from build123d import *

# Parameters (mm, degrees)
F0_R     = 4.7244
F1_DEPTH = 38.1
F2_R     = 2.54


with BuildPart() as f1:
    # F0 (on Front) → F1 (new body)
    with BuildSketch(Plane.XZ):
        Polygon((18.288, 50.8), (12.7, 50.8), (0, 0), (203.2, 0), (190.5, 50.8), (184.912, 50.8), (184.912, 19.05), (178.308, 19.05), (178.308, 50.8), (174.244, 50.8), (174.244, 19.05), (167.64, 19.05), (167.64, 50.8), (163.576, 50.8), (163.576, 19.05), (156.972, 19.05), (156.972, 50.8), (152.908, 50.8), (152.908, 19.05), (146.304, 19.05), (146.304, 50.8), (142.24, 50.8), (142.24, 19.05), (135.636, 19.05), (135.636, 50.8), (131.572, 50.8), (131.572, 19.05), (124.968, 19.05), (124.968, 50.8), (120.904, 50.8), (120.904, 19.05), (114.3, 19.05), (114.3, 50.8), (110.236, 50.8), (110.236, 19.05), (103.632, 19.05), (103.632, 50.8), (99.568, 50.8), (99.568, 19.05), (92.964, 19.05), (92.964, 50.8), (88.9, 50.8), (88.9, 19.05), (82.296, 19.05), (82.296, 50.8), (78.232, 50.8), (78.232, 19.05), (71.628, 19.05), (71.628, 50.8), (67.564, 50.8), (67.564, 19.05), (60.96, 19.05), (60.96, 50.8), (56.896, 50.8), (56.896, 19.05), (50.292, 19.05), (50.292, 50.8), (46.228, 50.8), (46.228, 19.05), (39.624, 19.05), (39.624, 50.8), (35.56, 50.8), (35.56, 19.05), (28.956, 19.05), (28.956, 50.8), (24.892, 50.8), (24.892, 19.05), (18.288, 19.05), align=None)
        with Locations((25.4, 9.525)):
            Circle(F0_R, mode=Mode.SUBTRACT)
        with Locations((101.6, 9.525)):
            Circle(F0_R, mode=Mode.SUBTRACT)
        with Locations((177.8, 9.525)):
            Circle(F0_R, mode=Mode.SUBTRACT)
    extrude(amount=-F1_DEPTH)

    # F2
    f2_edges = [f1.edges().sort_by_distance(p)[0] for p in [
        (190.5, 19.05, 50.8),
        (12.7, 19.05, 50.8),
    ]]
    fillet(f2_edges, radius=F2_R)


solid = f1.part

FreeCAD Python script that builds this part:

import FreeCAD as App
import Part
import Sketcher
from FreeCAD import Vector
Q = App.Units.Quantity


def edges_at(feature, points):
    """Names of the edges that pass closest to the given points."""
    edges = feature.Shape.Edges
    near = lambda p: min(range(len(edges)), key=lambda i: edges[i].distToShape(Part.Vertex(*p))[0])
    return sorted({f"Edge{near(p) + 1}" for p in points})

doc = App.newDocument("Part")
body = doc.addObject("PartDesign::Body", "Body")

# Sketch on XZ plane
sketch1 = body.newObject("Sketcher::SketchObject", "Sketch")
sketch1.AttachmentSupport = (doc.getObject("XZ_Plane"), [""])
sketch1.MapMode = "FlatFace"
sketch1.addGeometry(Part.LineSegment(Vector(18.3, 50.8, 0), Vector(12.7, 50.8, 0)), False)
sketch1.addGeometry(Part.LineSegment(Vector(12.7, 50.8, 0), Vector(0, 0, 0)), False)
sketch1.addGeometry(Part.LineSegment(Vector(0, 0, 0), Vector(203.2, 0, 0)), False)
sketch1.addGeometry(Part.LineSegment(Vector(203.2, 0, 0), Vector(190.5, 50.8, 0)), False)
sketch1.addGeometry(Part.LineSegment(Vector(190.5, 50.8, 0), Vector(184.9, 50.8, 0)), False)
sketch1.addGeometry(Part.LineSegment(Vector(184.9, 50.8, 0), Vector(184.9, 19.1, 0)), False)
sketch1.addGeometry(Part.LineSegment(Vector(184.9, 19.1, 0), Vector(178.3, 19.1, 0)), False)
sketch1.addGeometry(Part.LineSegment(Vector(178.3, 19.1, 0), Vector(178.3, 50.8, 0)), False)
sketch1.addGeometry(Part.LineSegment(Vector(178.3, 50.8, 0), Vector(174.2, 50.8, 0)), False)
sketch1.addGeometry(Part.LineSegment(Vector(174.2, 50.8, 0), Vector(174.2, 19.1, 0)), False)
sketch1.addGeometry(Part.LineSegment(Vector(174.2, 19.1, 0), Vector(167.6, 19.1, 0)), False)
sketch1.addGeometry(Part.LineSegment(Vector(167.6, 19.1, 0), Vector(167.6, 50.8, 0)), False)
sketch1.addGeometry(Part.LineSegment(Vector(167.6, 50.8, 0), Vector(163.6, 50.8, 0)), False)
sketch1.addGeometry(Part.LineSegment(Vector(163.6, 50.8, 0), Vector(163.6, 19.1, 0)), False)
sketch1.addGeometry(Part.LineSegment(Vector(163.6, 19.1, 0), Vector(157, 19.1, 0)), False)
sketch1.addGeometry(Part.LineSegment(Vector(157, 19.1, 0), Vector(157, 50.8, 0)), False)
sketch1.addGeometry(Part.LineSegment(Vector(157, 50.8, 0), Vector(152.9, 50.8, 0)), False)
sketch1.addGeometry(Part.LineSegment(Vector(152.9, 50.8, 0), Vector(152.9, 19.1, 0)), False)
sketch1.addGeometry(Part.LineSegment(Vector(152.9, 19.1, 0), Vector(146.3, 19.1, 0)), False)
sketch1.addGeometry(Part.LineSegment(Vector(146.3, 19.1, 0), Vector(146.3, 50.8, 0)), False)
sketch1.addGeometry(Part.LineSegment(Vector(146.3, 50.8, 0), Vector(142.2, 50.8, 0)), False)
sketch1.addGeometry(Part.LineSegment(Vector(142.2, 50.8, 0), Vector(142.2, 19.1, 0)), False)
sketch1.addGeometry(Part.LineSegment(Vector(142.2, 19.1, 0), Vector(135.6, 19.1, 0)), False)
sketch1.addGeometry(Part.LineSegment(Vector(135.6, 19.1, 0), Vector(135.6, 50.8, 0)), False)
sketch1.addGeometry(Part.LineSegment(Vector(135.6, 50.8, 0), Vector(131.6, 50.8, 0)), False)
sketch1.addGeometry(Part.LineSegment(Vector(131.6, 50.8, 0), Vector(131.6, 19.1, 0)), False)
sketch1.addGeometry(Part.LineSegment(Vector(131.6, 19.1, 0), Vector(125, 19.1, 0)), False)
sketch1.addGeometry(Part.LineSegment(Vector(125, 19.1, 0), Vector(125, 50.8, 0)), False)
sketch1.addGeometry(Part.LineSegment(Vector(125, 50.8, 0), Vector(120.9, 50.8, 0)), False)
sketch1.addGeometry(Part.LineSegment(Vector(120.9, 50.8, 0), Vector(120.9, 19.1, 0)), False)
sketch1.addGeometry(Part.LineSegment(Vector(120.9, 19.1, 0), Vector(114.3, 19.1, 0)), False)
sketch1.addGeometry(Part.LineSegment(Vector(114.3, 19.1, 0), Vector(114.3, 50.8, 0)), False)
sketch1.addGeometry(Part.LineSegment(Vector(114.3, 50.8, 0), Vector(110.2, 50.8, 0)), False)
sketch1.addGeometry(Part.LineSegment(Vector(110.2, 50.8, 0), Vector(110.2, 19.1, 0)), False)
sketch1.addGeometry(Part.LineSegment(Vector(110.2, 19.1, 0), Vector(103.6, 19.1, 0)), False)
sketch1.addGeometry(Part.LineSegment(Vector(103.6, 19.1, 0), Vector(103.6, 50.8, 0)), False)
sketch1.addGeometry(Part.LineSegment(Vector(103.6, 50.8, 0), Vector(99.6, 50.8, 0)), False)
sketch1.addGeometry(Part.LineSegment(Vector(99.6, 50.8, 0), Vector(99.6, 19.1, 0)), False)
sketch1.addGeometry(Part.LineSegment(Vector(99.6, 19.1, 0), Vector(93, 19.1, 0)), False)
sketch1.addGeometry(Part.LineSegment(Vector(93, 19.1, 0), Vector(93, 50.8, 0)), False)
sketch1.addGeometry(Part.LineSegment(Vector(93, 50.8, 0), Vector(88.9, 50.8, 0)), False)
sketch1.addGeometry(Part.LineSegment(Vector(88.9, 50.8, 0), Vector(88.9, 19.1, 0)), False)
sketch1.addGeometry(Part.LineSegment(Vector(88.9, 19.1, 0), Vector(82.3, 19.1, 0)), False)
sketch1.addGeometry(Part.LineSegment(Vector(82.3, 19.1, 0), Vector(82.3, 50.8, 0)), False)
sketch1.addGeometry(Part.LineSegment(Vector(82.3, 50.8, 0), Vector(78.2, 50.8, 0)), False)
sketch1.addGeometry(Part.LineSegment(Vector(78.2, 50.8, 0), Vector(78.2, 19.1, 0)), False)
sketch1.addGeometry(Part.LineSegment(Vector(78.2, 19.1, 0), Vector(71.6, 19.1, 0)), False)
sketch1.addGeometry(Part.LineSegment(Vector(71.6, 19.1, 0), Vector(71.6, 50.8, 0)), False)
sketch1.addGeometry(Part.LineSegment(Vector(71.6, 50.8, 0), Vector(67.6, 50.8, 0)), False)
sketch1.addGeometry(Part.LineSegment(Vector(67.6, 50.8, 0), Vector(67.6, 19.1, 0)), False)
sketch1.addGeometry(Part.LineSegment(Vector(67.6, 19.1, 0), Vector(61, 19.1, 0)), False)
sketch1.addGeometry(Part.LineSegment(Vector(61, 19.1, 0), Vector(61, 50.8, 0)), False)
sketch1.addGeometry(Part.LineSegment(Vector(61, 50.8, 0), Vector(56.9, 50.8, 0)), False)
sketch1.addGeometry(Part.LineSegment(Vector(56.9, 50.8, 0), Vector(56.9, 19.1, 0)), False)
sketch1.addGeometry(Part.LineSegment(Vector(56.9, 19.1, 0), Vector(50.3, 19.1, 0)), False)
sketch1.addGeometry(Part.LineSegment(Vector(50.3, 19.1, 0), Vector(50.3, 50.8, 0)), False)
sketch1.addGeometry(Part.LineSegment(Vector(50.3, 50.8, 0), Vector(46.2, 50.8, 0)), False)
sketch1.addGeometry(Part.LineSegment(Vector(46.2, 50.8, 0), Vector(46.2, 19.1, 0)), False)
sketch1.addGeometry(Part.LineSegment(Vector(46.2, 19.1, 0), Vector(39.6, 19.1, 0)), False)
sketch1.addGeometry(Part.LineSegment(Vector(39.6, 19.1, 0), Vector(39.6, 50.8, 0)), False)
sketch1.addGeometry(Part.LineSegment(Vector(39.6, 50.8, 0), Vector(35.6, 50.8, 0)), False)
sketch1.addGeometry(Part.LineSegment(Vector(35.6, 50.8, 0), Vector(35.6, 19.1, 0)), False)
sketch1.addGeometry(Part.LineSegment(Vector(35.6, 19.1, 0), Vector(29, 19.1, 0)), False)
sketch1.addGeometry(Part.LineSegment(Vector(29, 19.1, 0), Vector(29, 50.8, 0)), False)
sketch1.addGeometry(Part.LineSegment(Vector(29, 50.8, 0), Vector(24.9, 50.8, 0)), False)
sketch1.addGeometry(Part.LineSegment(Vector(24.9, 50.8, 0), Vector(24.9, 19.1, 0)), False)
sketch1.addGeometry(Part.LineSegment(Vector(24.9, 19.1, 0), Vector(18.3, 19.1, 0)), False)
sketch1.addGeometry(Part.LineSegment(Vector(18.3, 19.1, 0), Vector(18.3, 50.8, 0)), False)
sketch1.addGeometry(Part.Circle(Vector(25.4, 9.5, 0), Vector(0, 0, 1), 4.7), False)
sketch1.addGeometry(Part.Circle(Vector(101.6, 9.5, 0), Vector(0, 0, 1), 4.7), False)
sketch1.addGeometry(Part.Circle(Vector(177.8, 9.5, 0), Vector(0, 0, 1), 4.7), False)
sketch1.addConstraint(Sketcher.Constraint("Coincident", 0, 2, 1, 1))
sketch1.addConstraint(Sketcher.Constraint("Coincident", 1, 2, 2, 1))
sketch1.addConstraint(Sketcher.Constraint("Coincident", 2, 2, 3, 1))
sketch1.addConstraint(Sketcher.Constraint("Coincident", 3, 2, 4, 1))
sketch1.addConstraint(Sketcher.Constraint("Coincident", 4, 2, 5, 1))
sketch1.addConstraint(Sketcher.Constraint("Coincident", 5, 2, 6, 1))
sketch1.addConstraint(Sketcher.Constraint("Coincident", 6, 2, 7, 1))
sketch1.addConstraint(Sketcher.Constraint("Coincident", 7, 2, 8, 1))
sketch1.addConstraint(Sketcher.Constraint("Coincident", 8, 2, 9, 1))
sketch1.addConstraint(Sketcher.Constraint("Coincident", 9, 2, 10, 1))
sketch1.addConstraint(Sketcher.Constraint("Coincident", 10, 2, 11, 1))
sketch1.addConstraint(Sketcher.Constraint("Coincident", 11, 2, 12, 1))
sketch1.addConstraint(Sketcher.Constraint("Coincident", 12, 2, 13, 1))
sketch1.addConstraint(Sketcher.Constraint("Coincident", 13, 2, 14, 1))
sketch1.addConstraint(Sketcher.Constraint("Coincident", 14, 2, 15, 1))
sketch1.addConstraint(Sketcher.Constraint("Coincident", 15, 2, 16, 1))
sketch1.addConstraint(Sketcher.Constraint("Coincident", 16, 2, 17, 1))
sketch1.addConstraint(Sketcher.Constraint("Coincident", 17, 2, 18, 1))
sketch1.addConstraint(Sketcher.Constraint("Coincident", 18, 2, 19, 1))
sketch1.addConstraint(Sketcher.Constraint("Coincident", 19, 2, 20, 1))
sketch1.addConstraint(Sketcher.Constraint("Coincident", 20, 2, 21, 1))
sketch1.addConstraint(Sketcher.Constraint("Coincident", 21, 2, 22, 1))
sketch1.addConstraint(Sketcher.Constraint("Coincident", 22, 2, 23, 1))
sketch1.addConstraint(Sketcher.Constraint("Coincident", 23, 2, 24, 1))
sketch1.addConstraint(Sketcher.Constraint("Coincident", 24, 2, 25, 1))
sketch1.addConstraint(Sketcher.Constraint("Coincident", 25, 2, 26, 1))
sketch1.addConstraint(Sketcher.Constraint("Coincident", 26, 2, 27, 1))
sketch1.addConstraint(Sketcher.Constraint("Coincident", 27, 2, 28, 1))
sketch1.addConstraint(Sketcher.Constraint("Coincident", 28, 2, 29, 1))
sketch1.addConstraint(Sketcher.Constraint("Coincident", 29, 2, 30, 1))
sketch1.addConstraint(Sketcher.Constraint("Coincident", 30, 2, 31, 1))
sketch1.addConstraint(Sketcher.Constraint("Coincident", 31, 2, 32, 1))
sketch1.addConstraint(Sketcher.Constraint("Coincident", 32, 2, 33, 1))
sketch1.addConstraint(Sketcher.Constraint("Coincident", 33, 2, 34, 1))
sketch1.addConstraint(Sketcher.Constraint("Coincident", 34, 2, 35, 1))
sketch1.addConstraint(Sketcher.Constraint("Coincident", 35, 2, 36, 1))
sketch1.addConstraint(Sketcher.Constraint("Coincident", 36, 2, 37, 1))
sketch1.addConstraint(Sketcher.Constraint("Coincident", 37, 2, 38, 1))
sketch1.addConstraint(Sketcher.Constraint("Coincident", 38, 2, 39, 1))
sketch1.addConstraint(Sketcher.Constraint("Coincident", 39, 2, 40, 1))
sketch1.addConstraint(Sketcher.Constraint("Coincident", 40, 2, 41, 1))
sketch1.addConstraint(Sketcher.Constraint("Coincident", 41, 2, 42, 1))
sketch1.addConstraint(Sketcher.Constraint("Coincident", 42, 2, 43, 1))
sketch1.addConstraint(Sketcher.Constraint("Coincident", 43, 2, 44, 1))
sketch1.addConstraint(Sketcher.Constraint("Coincident", 44, 2, 45, 1))
sketch1.addConstraint(Sketcher.Constraint("Coincident", 45, 2, 46, 1))
sketch1.addConstraint(Sketcher.Constraint("Coincident", 46, 2, 47, 1))
sketch1.addConstraint(Sketcher.Constraint("Coincident", 47, 2, 48, 1))
sketch1.addConstraint(Sketcher.Constraint("Coincident", 48, 2, 49, 1))
sketch1.addConstraint(Sketcher.Constraint("Coincident", 49, 2, 50, 1))
sketch1.addConstraint(Sketcher.Constraint("Coincident", 50, 2, 51, 1))
sketch1.addConstraint(Sketcher.Constraint("Coincident", 51, 2, 52, 1))
sketch1.addConstraint(Sketcher.Constraint("Coincident", 52, 2, 53, 1))
sketch1.addConstraint(Sketcher.Constraint("Coincident", 53, 2, 54, 1))
sketch1.addConstraint(Sketcher.Constraint("Coincident", 54, 2, 55, 1))
sketch1.addConstraint(Sketcher.Constraint("Coincident", 55, 2, 56, 1))
sketch1.addConstraint(Sketcher.Constraint("Coincident", 56, 2, 57, 1))
sketch1.addConstraint(Sketcher.Constraint("Coincident", 57, 2, 58, 1))
sketch1.addConstraint(Sketcher.Constraint("Coincident", 58, 2, 59, 1))
sketch1.addConstraint(Sketcher.Constraint("Coincident", 59, 2, 60, 1))
sketch1.addConstraint(Sketcher.Constraint("Coincident", 60, 2, 61, 1))
sketch1.addConstraint(Sketcher.Constraint("Coincident", 61, 2, 62, 1))
sketch1.addConstraint(Sketcher.Constraint("Coincident", 62, 2, 63, 1))
sketch1.addConstraint(Sketcher.Constraint("Coincident", 63, 2, 64, 1))
sketch1.addConstraint(Sketcher.Constraint("Coincident", 64, 2, 65, 1))
sketch1.addConstraint(Sketcher.Constraint("Coincident", 65, 2, 66, 1))
sketch1.addConstraint(Sketcher.Constraint("Coincident", 66, 2, 67, 1))
sketch1.addConstraint(Sketcher.Constraint("Coincident", 67, 2, 0, 1))
sketch1.addConstraint(Sketcher.Constraint("Horizontal", 0))
sketch1.addConstraint(Sketcher.Constraint("Horizontal", 2))
sketch1.addConstraint(Sketcher.Constraint("Horizontal", 4))
sketch1.addConstraint(Sketcher.Constraint("Vertical", 5))
sketch1.addConstraint(Sketcher.Constraint("Horizontal", 6))
sketch1.addConstraint(Sketcher.Constraint("Vertical", 7))
sketch1.addConstraint(Sketcher.Constraint("Horizontal", 8))
sketch1.addConstraint(Sketcher.Constraint("Vertical", 9))
sketch1.addConstraint(Sketcher.Constraint("Horizontal", 10))
sketch1.addConstraint(Sketcher.Constraint("Vertical", 11))
sketch1.addConstraint(Sketcher.Constraint("Horizontal", 12))
sketch1.addConstraint(Sketcher.Constraint("Vertical", 13))
sketch1.addConstraint(Sketcher.Constraint("Horizontal", 14))
sketch1.addConstraint(Sketcher.Constraint("Vertical", 15))
sketch1.addConstraint(Sketcher.Constraint("Horizontal", 16))
sketch1.addConstraint(Sketcher.Constraint("Vertical", 17))
sketch1.addConstraint(Sketcher.Constraint("Horizontal", 18))
sketch1.addConstraint(Sketcher.Constraint("Vertical", 19))
sketch1.addConstraint(Sketcher.Constraint("Horizontal", 20))
sketch1.addConstraint(Sketcher.Constraint("Vertical", 21))
sketch1.addConstraint(Sketcher.Constraint("Horizontal", 22))
sketch1.addConstraint(Sketcher.Constraint("Vertical", 23))
sketch1.addConstraint(Sketcher.Constraint("Horizontal", 24))
sketch1.addConstraint(Sketcher.Constraint("Vertical", 25))
sketch1.addConstraint(Sketcher.Constraint("Horizontal", 26))
sketch1.addConstraint(Sketcher.Constraint("Vertical", 27))
sketch1.addConstraint(Sketcher.Constraint("Horizontal", 28))
sketch1.addConstraint(Sketcher.Constraint("Vertical", 29))
sketch1.addConstraint(Sketcher.Constraint("Horizontal", 30))
sketch1.addConstraint(Sketcher.Constraint("Vertical", 31))
sketch1.addConstraint(Sketcher.Constraint("Horizontal", 32))
sketch1.addConstraint(Sketcher.Constraint("Vertical", 33))
sketch1.addConstraint(Sketcher.Constraint("Horizontal", 34))
sketch1.addConstraint(Sketcher.Constraint("Vertical", 35))
sketch1.addConstraint(Sketcher.Constraint("Horizontal", 36))
sketch1.addConstraint(Sketcher.Constraint("Vertical", 37))
sketch1.addConstraint(Sketcher.Constraint("Horizontal", 38))
sketch1.addConstraint(Sketcher.Constraint("Vertical", 39))
sketch1.addConstraint(Sketcher.Constraint("Horizontal", 40))
sketch1.addConstraint(Sketcher.Constraint("Vertical", 41))
sketch1.addConstraint(Sketcher.Constraint("Horizontal", 42))
sketch1.addConstraint(Sketcher.Constraint("Vertical", 43))
sketch1.addConstraint(Sketcher.Constraint("Horizontal", 44))
sketch1.addConstraint(Sketcher.Constraint("Vertical", 45))
sketch1.addConstraint(Sketcher.Constraint("Horizontal", 46))
sketch1.addConstraint(Sketcher.Constraint("Vertical", 47))
sketch1.addConstraint(Sketcher.Constraint("Horizontal", 48))
sketch1.addConstraint(Sketcher.Constraint("Vertical", 49))
sketch1.addConstraint(Sketcher.Constraint("Horizontal", 50))
sketch1.addConstraint(Sketcher.Constraint("Vertical", 51))
sketch1.addConstraint(Sketcher.Constraint("Horizontal", 52))
sketch1.addConstraint(Sketcher.Constraint("Vertical", 53))
sketch1.addConstraint(Sketcher.Constraint("Horizontal", 54))
sketch1.addConstraint(Sketcher.Constraint("Vertical", 55))
sketch1.addConstraint(Sketcher.Constraint("Horizontal", 56))
sketch1.addConstraint(Sketcher.Constraint("Vertical", 57))
sketch1.addConstraint(Sketcher.Constraint("Horizontal", 58))
sketch1.addConstraint(Sketcher.Constraint("Vertical", 59))
sketch1.addConstraint(Sketcher.Constraint("Horizontal", 60))
sketch1.addConstraint(Sketcher.Constraint("Vertical", 61))
sketch1.addConstraint(Sketcher.Constraint("Horizontal", 62))
sketch1.addConstraint(Sketcher.Constraint("Vertical", 63))
sketch1.addConstraint(Sketcher.Constraint("Horizontal", 64))
sketch1.addConstraint(Sketcher.Constraint("Vertical", 65))
sketch1.addConstraint(Sketcher.Constraint("Horizontal", 66))
sketch1.addConstraint(Sketcher.Constraint("Vertical", 67))
sketch1.addConstraint(Sketcher.Constraint("Coincident", 1, 2, -1, 1))
sketch1.addConstraint(Sketcher.Constraint("Equal", 68, 69))
sketch1.addConstraint(Sketcher.Constraint("Equal", 69, 70))
sketch1.addConstraint(Sketcher.Constraint("Horizontal", 68, 3, 69, 3))
sketch1.addConstraint(Sketcher.Constraint("Horizontal", 69, 3, 70, 3))
sketch1.addConstraint(Sketcher.Constraint("Horizontal", 0, 2, 3, 2))
sketch1.addConstraint(Sketcher.Constraint("Horizontal", 4, 2, 7, 2))
sketch1.addConstraint(Sketcher.Constraint("Horizontal", 6, 2, 9, 2))
sketch1.addConstraint(Sketcher.Constraint("Horizontal", 8, 2, 11, 2))
sketch1.addConstraint(Sketcher.Constraint("Horizontal", 10, 2, 13, 2))
sketch1.addConstraint(Sketcher.Constraint("Horizontal", 12, 2, 15, 2))
sketch1.addConstraint(Sketcher.Constraint("Horizontal", 14, 2, 17, 2))
sketch1.addConstraint(Sketcher.Constraint("Horizontal", 16, 2, 19, 2))
sketch1.addConstraint(Sketcher.Constraint("Horizontal", 18, 2, 21, 2))
sketch1.addConstraint(Sketcher.Constraint("Horizontal", 20, 2, 23, 2))
sketch1.addConstraint(Sketcher.Constraint("Horizontal", 22, 2, 25, 2))
sketch1.addConstraint(Sketcher.Constraint("Horizontal", 24, 2, 27, 2))
sketch1.addConstraint(Sketcher.Constraint("Horizontal", 26, 2, 29, 2))
sketch1.addConstraint(Sketcher.Constraint("Horizontal", 28, 2, 31, 2))
sketch1.addConstraint(Sketcher.Constraint("Horizontal", 30, 2, 33, 2))
sketch1.addConstraint(Sketcher.Constraint("Horizontal", 32, 2, 35, 2))
sketch1.addConstraint(Sketcher.Constraint("Horizontal", 34, 2, 37, 2))
sketch1.addConstraint(Sketcher.Constraint("Horizontal", 36, 2, 39, 2))
sketch1.addConstraint(Sketcher.Constraint("Horizontal", 38, 2, 41, 2))
sketch1.addConstraint(Sketcher.Constraint("Horizontal", 40, 2, 43, 2))
sketch1.addConstraint(Sketcher.Constraint("Horizontal", 42, 2, 45, 2))
sketch1.addConstraint(Sketcher.Constraint("Horizontal", 44, 2, 47, 2))
sketch1.addConstraint(Sketcher.Constraint("Horizontal", 46, 2, 49, 2))
sketch1.addConstraint(Sketcher.Constraint("Horizontal", 48, 2, 51, 2))
sketch1.addConstraint(Sketcher.Constraint("Horizontal", 50, 2, 53, 2))
sketch1.addConstraint(Sketcher.Constraint("Horizontal", 52, 2, 55, 2))
sketch1.addConstraint(Sketcher.Constraint("Horizontal", 54, 2, 57, 2))
sketch1.addConstraint(Sketcher.Constraint("Horizontal", 56, 2, 59, 2))
sketch1.addConstraint(Sketcher.Constraint("Horizontal", 58, 2, 61, 2))
sketch1.addConstraint(Sketcher.Constraint("Horizontal", 60, 2, 63, 2))
sketch1.addConstraint(Sketcher.Constraint("Horizontal", 62, 2, 65, 2))
sketch1.addConstraint(Sketcher.Constraint("Equal", 0, 4))
sketch1.addConstraint(Sketcher.Constraint("Equal", 6, 10))
sketch1.addConstraint(Sketcher.Constraint("Equal", 8, 12))
sketch1.addConstraint(Sketcher.Constraint("Equal", 10, 14))
sketch1.addConstraint(Sketcher.Constraint("Equal", 12, 16))
sketch1.addConstraint(Sketcher.Constraint("Equal", 14, 18))
sketch1.addConstraint(Sketcher.Constraint("Equal", 16, 20))
sketch1.addConstraint(Sketcher.Constraint("Equal", 18, 22))
sketch1.addConstraint(Sketcher.Constraint("Equal", 20, 24))
sketch1.addConstraint(Sketcher.Constraint("Equal", 22, 26))
sketch1.addConstraint(Sketcher.Constraint("Equal", 24, 28))
sketch1.addConstraint(Sketcher.Constraint("Equal", 26, 30))
sketch1.addConstraint(Sketcher.Constraint("Equal", 28, 32))
sketch1.addConstraint(Sketcher.Constraint("Equal", 30, 34))
sketch1.addConstraint(Sketcher.Constraint("Equal", 32, 36))
sketch1.addConstraint(Sketcher.Constraint("Equal", 34, 38))
sketch1.addConstraint(Sketcher.Constraint("Equal", 36, 40))
sketch1.addConstraint(Sketcher.Constraint("Equal", 38, 42))
sketch1.addConstraint(Sketcher.Constraint("Equal", 40, 44))
sketch1.addConstraint(Sketcher.Constraint("Equal", 42, 46))
sketch1.addConstraint(Sketcher.Constraint("Equal", 44, 48))
sketch1.addConstraint(Sketcher.Constraint("Equal", 46, 50))
sketch1.addConstraint(Sketcher.Constraint("Equal", 48, 52))
sketch1.addConstraint(Sketcher.Constraint("Equal", 50, 54))
sketch1.addConstraint(Sketcher.Constraint("Equal", 52, 56))
sketch1.addConstraint(Sketcher.Constraint("Equal", 54, 58))
sketch1.addConstraint(Sketcher.Constraint("Equal", 56, 60))
sketch1.addConstraint(Sketcher.Constraint("Equal", 58, 62))
sketch1.addConstraint(Sketcher.Constraint("Equal", 60, 64))
sketch1.addConstraint(Sketcher.Constraint("Equal", 62, 66))
sketch1.addConstraint(Sketcher.Constraint("Equal", 1, 3))
sketch1.addConstraint(Sketcher.Constraint("DistanceX", 2, 1, 2, 2, Q("8 in")))
sketch1.addConstraint(Sketcher.Constraint("Diameter", 68, Q("0.372 in")))
sketch1.addConstraint(Sketcher.Constraint("DistanceX", -1, 1, 68, 3, Q("1 in")))
sketch1.addConstraint(Sketcher.Constraint("DistanceX", -1, 1, 69, 3, Q("4 in")))
sketch1.addConstraint(Sketcher.Constraint("DistanceX", -1, 1, 70, 3, Q("7 in")))
sketch1.addConstraint(Sketcher.Constraint("DistanceY", -1, 1, 0, 2, Q("2 in")))
sketch1.addConstraint(Sketcher.Constraint("DistanceX", 0, 2, 0, 1, Q("0.22 in")))
sketch1.addConstraint(Sketcher.Constraint("DistanceX", 6, 2, 6, 1, Q("0.26 in")))
sketch1.addConstraint(Sketcher.Constraint("DistanceX", 8, 2, 8, 1, Q("0.16 in")))
sketch1.addConstraint(Sketcher.Constraint("DistanceY", 5, 2, 5, 1, Q("1.25 in")))
sketch1.addConstraint(Sketcher.Constraint("DistanceY", -1, 1, 68, 3, Q("0.375 in")))
pad1 = body.newObject("PartDesign::Pad", "Pad")
pad1.Profile = sketch1
pad1.Length = Q("1.5 in")
pad1.Reversed = True
doc.recompute()

fillet = body.newObject("PartDesign::Fillet", "Fillet")
fillet.Base = (pad1, edges_at(pad1, [(190.5, 19.05, 50.8), (12.7, 19.05, 50.8)]))
fillet.Radius = Q("0.1 in")

doc.recompute()
